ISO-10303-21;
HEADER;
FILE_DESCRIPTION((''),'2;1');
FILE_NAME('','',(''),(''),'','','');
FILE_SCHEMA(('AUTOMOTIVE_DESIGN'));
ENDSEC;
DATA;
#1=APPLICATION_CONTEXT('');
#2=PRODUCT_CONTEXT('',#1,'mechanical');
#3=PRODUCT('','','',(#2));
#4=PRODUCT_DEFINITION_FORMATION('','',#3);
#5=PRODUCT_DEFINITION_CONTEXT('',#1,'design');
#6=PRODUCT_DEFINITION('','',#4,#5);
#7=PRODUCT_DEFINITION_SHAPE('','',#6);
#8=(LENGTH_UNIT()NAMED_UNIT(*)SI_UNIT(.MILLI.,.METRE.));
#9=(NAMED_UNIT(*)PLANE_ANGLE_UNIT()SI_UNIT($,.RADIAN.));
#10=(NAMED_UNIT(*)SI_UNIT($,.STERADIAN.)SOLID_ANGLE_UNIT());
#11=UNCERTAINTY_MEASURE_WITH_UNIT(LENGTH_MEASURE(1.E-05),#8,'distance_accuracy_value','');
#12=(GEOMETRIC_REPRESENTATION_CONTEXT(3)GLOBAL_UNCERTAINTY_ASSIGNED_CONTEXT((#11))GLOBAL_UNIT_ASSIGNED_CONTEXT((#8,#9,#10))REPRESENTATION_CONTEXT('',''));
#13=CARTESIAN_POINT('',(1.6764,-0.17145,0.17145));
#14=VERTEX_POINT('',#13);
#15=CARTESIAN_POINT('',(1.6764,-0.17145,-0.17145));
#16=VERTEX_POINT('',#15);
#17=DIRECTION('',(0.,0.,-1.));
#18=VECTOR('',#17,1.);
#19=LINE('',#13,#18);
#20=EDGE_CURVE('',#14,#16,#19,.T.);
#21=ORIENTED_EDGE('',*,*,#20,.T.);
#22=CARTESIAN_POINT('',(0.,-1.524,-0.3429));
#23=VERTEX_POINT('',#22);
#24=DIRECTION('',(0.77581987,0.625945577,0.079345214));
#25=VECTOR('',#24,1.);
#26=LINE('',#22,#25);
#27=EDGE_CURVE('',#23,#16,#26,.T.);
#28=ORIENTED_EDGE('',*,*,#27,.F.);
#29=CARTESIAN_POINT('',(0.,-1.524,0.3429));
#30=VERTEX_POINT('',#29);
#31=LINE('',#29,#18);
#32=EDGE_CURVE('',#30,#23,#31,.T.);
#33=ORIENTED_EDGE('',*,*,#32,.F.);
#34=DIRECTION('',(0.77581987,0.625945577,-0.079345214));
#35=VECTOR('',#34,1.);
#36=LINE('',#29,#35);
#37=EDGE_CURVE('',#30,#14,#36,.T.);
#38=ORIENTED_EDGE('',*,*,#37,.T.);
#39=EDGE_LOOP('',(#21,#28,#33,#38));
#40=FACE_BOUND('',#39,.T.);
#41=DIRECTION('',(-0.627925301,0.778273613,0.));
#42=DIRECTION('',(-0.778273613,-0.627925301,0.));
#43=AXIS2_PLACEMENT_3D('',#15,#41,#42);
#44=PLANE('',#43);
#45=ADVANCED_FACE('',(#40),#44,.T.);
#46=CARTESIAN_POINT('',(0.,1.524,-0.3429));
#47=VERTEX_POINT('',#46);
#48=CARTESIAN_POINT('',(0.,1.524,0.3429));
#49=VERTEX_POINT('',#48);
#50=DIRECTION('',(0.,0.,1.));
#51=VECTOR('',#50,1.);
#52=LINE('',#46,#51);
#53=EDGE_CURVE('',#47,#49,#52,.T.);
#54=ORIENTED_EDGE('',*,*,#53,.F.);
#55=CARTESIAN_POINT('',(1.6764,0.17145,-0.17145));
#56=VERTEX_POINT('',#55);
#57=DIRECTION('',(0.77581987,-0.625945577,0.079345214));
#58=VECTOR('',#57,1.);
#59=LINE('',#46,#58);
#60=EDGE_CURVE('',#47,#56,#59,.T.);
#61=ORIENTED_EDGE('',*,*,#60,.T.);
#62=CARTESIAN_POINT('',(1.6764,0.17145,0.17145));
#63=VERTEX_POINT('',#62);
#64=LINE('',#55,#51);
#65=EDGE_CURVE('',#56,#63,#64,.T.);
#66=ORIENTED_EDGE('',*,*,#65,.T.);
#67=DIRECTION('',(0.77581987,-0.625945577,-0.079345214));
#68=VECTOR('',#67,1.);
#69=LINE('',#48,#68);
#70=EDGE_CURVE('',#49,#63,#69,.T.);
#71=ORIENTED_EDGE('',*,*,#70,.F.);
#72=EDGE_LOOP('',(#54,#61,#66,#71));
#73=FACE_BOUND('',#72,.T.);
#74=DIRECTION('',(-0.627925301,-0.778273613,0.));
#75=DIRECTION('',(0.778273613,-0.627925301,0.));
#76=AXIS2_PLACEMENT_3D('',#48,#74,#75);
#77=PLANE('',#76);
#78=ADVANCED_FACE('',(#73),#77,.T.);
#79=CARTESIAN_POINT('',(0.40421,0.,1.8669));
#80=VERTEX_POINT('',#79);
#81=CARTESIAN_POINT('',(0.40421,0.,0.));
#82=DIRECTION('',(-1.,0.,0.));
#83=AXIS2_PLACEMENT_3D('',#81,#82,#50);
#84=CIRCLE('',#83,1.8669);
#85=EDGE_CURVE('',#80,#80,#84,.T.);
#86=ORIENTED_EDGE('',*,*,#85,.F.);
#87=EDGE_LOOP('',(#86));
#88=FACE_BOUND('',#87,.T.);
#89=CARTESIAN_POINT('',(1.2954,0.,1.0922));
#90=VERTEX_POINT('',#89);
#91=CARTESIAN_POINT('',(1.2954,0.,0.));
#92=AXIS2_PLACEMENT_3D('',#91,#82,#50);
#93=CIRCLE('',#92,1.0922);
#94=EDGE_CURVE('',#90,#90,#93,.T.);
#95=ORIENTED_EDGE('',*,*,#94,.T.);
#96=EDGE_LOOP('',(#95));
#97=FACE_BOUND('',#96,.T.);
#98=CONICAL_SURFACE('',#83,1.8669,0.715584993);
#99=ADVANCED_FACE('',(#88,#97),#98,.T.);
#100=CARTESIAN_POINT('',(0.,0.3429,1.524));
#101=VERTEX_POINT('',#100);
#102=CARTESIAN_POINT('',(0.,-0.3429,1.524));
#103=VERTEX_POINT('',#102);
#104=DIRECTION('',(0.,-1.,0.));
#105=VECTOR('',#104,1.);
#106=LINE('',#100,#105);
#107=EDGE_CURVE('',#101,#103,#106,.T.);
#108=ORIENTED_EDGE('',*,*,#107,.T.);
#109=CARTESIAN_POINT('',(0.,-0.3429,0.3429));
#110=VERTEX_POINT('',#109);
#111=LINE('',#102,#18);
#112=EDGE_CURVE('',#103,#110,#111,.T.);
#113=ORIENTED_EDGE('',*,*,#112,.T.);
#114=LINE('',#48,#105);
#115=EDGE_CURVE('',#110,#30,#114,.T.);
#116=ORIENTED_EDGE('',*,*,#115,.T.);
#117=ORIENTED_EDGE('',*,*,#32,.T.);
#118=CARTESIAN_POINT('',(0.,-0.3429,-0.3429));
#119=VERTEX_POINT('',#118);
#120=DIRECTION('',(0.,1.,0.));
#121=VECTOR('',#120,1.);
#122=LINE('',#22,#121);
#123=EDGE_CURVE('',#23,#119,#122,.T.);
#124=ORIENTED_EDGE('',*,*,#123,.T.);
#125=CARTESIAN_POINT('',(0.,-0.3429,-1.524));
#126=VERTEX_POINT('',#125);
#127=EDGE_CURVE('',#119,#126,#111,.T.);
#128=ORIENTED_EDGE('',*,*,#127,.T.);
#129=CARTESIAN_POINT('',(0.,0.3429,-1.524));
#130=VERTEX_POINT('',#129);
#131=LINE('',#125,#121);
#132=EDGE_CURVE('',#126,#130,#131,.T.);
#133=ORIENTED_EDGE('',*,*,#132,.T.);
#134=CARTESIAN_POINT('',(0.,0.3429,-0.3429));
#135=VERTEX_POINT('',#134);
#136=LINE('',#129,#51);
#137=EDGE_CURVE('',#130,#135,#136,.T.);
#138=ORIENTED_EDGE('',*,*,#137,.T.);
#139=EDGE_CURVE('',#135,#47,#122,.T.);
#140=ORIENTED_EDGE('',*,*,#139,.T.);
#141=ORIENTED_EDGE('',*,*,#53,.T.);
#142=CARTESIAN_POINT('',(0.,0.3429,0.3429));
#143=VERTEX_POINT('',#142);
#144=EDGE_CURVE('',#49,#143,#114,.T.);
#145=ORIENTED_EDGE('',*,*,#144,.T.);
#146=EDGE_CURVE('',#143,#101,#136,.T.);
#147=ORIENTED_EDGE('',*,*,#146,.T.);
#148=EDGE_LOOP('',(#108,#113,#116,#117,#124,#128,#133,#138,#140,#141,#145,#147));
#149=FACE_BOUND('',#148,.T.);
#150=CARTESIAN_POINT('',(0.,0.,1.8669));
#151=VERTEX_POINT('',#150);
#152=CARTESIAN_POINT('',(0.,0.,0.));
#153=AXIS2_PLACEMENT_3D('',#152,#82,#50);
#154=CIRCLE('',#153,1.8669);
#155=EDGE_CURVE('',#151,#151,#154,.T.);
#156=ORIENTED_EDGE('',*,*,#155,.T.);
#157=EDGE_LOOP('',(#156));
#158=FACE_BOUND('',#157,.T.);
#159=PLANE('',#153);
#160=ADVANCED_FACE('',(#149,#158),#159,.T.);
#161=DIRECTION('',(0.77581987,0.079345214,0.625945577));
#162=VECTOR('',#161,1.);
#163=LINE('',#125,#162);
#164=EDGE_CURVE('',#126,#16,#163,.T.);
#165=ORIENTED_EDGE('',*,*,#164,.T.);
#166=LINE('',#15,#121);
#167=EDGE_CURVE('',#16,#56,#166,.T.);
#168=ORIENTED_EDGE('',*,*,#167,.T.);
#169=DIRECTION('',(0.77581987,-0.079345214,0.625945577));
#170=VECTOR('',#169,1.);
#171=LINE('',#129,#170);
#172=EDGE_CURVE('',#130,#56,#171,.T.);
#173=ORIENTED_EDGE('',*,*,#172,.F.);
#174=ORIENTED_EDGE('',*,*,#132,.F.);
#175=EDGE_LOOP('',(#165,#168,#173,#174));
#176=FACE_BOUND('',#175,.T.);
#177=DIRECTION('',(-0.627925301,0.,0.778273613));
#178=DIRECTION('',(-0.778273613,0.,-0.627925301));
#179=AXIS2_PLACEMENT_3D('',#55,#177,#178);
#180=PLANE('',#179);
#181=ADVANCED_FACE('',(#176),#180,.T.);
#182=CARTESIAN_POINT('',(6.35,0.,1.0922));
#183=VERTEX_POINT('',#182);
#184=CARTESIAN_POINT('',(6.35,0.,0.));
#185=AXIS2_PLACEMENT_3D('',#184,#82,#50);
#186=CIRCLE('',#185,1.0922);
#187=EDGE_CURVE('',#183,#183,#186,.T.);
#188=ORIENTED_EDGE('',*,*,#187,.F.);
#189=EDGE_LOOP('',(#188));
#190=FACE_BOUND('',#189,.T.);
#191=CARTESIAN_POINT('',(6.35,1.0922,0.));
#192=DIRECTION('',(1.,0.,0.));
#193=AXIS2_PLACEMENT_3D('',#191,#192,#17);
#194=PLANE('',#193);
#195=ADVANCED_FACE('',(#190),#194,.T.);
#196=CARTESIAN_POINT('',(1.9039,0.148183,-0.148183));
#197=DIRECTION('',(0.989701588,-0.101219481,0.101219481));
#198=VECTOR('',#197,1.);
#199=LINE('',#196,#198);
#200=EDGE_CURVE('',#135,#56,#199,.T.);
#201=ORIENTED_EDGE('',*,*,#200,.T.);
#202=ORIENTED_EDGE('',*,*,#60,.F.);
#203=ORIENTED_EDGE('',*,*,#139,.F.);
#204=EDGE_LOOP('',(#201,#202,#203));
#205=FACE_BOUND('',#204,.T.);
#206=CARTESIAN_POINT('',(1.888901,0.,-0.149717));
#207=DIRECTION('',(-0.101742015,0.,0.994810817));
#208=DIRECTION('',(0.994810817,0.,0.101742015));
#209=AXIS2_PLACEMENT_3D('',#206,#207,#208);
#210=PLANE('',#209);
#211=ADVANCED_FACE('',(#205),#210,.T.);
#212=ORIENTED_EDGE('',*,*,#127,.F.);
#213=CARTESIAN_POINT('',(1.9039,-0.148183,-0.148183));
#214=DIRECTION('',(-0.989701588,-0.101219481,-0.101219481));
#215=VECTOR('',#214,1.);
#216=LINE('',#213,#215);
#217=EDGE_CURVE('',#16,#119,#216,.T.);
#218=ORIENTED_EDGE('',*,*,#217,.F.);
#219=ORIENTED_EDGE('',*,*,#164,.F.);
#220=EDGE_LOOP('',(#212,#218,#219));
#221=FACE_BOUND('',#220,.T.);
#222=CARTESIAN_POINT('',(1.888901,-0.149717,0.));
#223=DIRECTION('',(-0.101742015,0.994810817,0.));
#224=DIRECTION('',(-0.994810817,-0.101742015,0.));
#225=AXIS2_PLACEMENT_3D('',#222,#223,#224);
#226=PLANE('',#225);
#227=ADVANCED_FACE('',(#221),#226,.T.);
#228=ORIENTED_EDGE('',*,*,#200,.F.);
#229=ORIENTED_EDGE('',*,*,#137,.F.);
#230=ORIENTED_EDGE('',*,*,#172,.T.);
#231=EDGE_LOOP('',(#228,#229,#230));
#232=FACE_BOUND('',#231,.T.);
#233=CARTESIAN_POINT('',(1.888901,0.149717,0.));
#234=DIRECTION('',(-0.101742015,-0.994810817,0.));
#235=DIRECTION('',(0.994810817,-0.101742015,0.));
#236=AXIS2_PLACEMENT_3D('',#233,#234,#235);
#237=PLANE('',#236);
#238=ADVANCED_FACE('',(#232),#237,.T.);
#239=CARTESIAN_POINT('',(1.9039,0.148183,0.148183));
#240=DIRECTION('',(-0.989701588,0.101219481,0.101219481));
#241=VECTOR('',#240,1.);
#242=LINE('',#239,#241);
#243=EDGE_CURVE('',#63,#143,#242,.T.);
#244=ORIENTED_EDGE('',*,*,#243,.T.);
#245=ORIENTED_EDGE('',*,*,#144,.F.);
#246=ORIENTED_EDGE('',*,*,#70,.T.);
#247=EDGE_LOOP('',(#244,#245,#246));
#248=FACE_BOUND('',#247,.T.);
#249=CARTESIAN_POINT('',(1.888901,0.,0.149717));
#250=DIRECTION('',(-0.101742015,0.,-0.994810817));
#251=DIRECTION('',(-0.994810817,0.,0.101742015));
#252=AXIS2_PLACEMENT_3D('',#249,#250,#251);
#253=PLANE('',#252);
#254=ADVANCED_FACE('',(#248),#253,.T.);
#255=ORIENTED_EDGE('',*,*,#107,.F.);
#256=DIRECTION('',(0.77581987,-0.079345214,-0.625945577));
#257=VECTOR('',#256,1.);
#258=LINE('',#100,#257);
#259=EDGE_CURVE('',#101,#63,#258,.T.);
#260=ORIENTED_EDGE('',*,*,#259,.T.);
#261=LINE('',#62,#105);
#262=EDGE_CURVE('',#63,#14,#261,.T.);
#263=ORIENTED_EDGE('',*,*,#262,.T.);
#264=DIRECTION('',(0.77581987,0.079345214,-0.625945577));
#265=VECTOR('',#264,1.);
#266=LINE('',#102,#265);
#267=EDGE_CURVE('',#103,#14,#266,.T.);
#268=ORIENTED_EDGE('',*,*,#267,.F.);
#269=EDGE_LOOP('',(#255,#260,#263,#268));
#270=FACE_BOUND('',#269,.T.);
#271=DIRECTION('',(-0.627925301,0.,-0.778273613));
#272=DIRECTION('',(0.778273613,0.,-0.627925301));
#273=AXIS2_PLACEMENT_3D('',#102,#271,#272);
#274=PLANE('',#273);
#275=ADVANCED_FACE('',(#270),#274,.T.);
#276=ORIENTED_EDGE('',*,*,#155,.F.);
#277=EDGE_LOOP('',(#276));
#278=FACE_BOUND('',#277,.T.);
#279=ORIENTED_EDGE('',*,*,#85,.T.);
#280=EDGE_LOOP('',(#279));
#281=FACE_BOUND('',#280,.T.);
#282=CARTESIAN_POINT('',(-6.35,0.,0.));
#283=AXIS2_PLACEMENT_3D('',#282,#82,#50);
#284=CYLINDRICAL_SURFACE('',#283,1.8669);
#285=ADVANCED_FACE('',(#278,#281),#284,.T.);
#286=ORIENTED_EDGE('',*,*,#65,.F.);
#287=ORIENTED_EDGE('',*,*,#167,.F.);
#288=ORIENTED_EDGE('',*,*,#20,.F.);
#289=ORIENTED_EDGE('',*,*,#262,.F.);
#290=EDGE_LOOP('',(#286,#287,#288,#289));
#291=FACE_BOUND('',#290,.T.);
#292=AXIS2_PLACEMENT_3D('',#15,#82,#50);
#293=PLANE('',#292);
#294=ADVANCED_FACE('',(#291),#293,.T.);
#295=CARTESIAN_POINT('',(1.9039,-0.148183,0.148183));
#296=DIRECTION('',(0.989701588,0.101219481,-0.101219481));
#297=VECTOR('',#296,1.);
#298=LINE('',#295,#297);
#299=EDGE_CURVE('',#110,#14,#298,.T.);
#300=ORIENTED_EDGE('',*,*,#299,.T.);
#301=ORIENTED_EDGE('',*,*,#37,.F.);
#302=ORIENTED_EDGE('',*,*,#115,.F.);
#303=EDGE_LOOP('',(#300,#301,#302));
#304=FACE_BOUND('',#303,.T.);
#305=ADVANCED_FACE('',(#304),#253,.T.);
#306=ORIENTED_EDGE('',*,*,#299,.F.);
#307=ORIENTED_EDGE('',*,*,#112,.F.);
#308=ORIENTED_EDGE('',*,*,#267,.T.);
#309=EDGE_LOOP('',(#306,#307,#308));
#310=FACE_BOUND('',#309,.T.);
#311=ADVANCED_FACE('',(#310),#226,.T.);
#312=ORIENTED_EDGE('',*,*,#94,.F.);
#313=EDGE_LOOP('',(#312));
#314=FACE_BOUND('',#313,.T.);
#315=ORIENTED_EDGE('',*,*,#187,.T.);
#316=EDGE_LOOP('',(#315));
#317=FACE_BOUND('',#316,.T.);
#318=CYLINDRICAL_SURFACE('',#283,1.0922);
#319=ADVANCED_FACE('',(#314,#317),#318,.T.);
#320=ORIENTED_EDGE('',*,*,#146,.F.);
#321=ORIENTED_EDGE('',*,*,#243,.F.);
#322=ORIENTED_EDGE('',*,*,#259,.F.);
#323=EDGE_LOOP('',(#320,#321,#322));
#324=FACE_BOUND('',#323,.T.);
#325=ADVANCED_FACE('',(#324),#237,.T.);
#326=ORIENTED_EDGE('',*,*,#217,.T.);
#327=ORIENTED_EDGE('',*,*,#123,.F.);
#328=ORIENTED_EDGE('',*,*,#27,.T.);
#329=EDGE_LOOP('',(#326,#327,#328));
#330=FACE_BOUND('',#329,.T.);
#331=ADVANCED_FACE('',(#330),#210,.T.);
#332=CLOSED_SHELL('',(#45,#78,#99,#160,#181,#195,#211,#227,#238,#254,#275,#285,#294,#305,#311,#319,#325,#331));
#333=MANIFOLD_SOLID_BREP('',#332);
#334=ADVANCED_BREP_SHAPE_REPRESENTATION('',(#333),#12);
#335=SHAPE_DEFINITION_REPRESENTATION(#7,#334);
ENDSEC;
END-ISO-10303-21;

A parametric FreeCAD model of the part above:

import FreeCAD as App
import Part
import Sketcher
from FreeCAD import Vector
Q = App.Units.Quantity


def add_polygon(sketch, points):
    """Adds a closed chain of lines whose ends are joined by coincident constraints."""
    first, n = sketch.GeometryCount, len(points)
    for a, b in zip(points, points[1:] + points[:1]):
        sketch.addGeometry(Part.LineSegment(App.Vector(*a, 0), App.Vector(*b, 0)), False)
    for i in range(n):
        sketch.addConstraint(Sketcher.Constraint("Coincident", first + i, 2, first + (i + 1) % n, 1))

doc = App.newDocument("Part")
body = doc.addObject("PartDesign::Body", "Body")

# Sketch on XY plane
sketch1 = doc.addObject("Sketcher::SketchObject", "Sketch")
body.addObject(sketch1)
sketch1.AttachmentSupport = (doc.XY_Plane, [""])
sketch1.MapMode = "FlatFace"
add_polygon(sketch1, [(0, 1.87), (0, 0), (6.35, 0), (6.35, 1.09), (1.3, 1.09), (0.4, 1.87)])  # lines 0-5
sketch1.addConstraint([
    Sketcher.Constraint("Vertical", 0),
    Sketcher.Constraint("Horizontal", 1),
    Sketcher.Constraint("Vertical", 2),
    Sketcher.Constraint("Horizontal", 3),
    Sketcher.Constraint("Horizontal", 5),
    Sketcher.Constraint("Coincident", 0, 2, -1, 1),
    Sketcher.Constraint("Angle", 4, Q("139 deg")),
    Sketcher.Constraint("DistanceX", 1, 1, 1, 2, Q("0.25 in")),
    Sketcher.Constraint("DistanceX", 3, 2, 3, 1, Q("0.199 in")),
    Sketcher.Constraint("DistanceY", 2, 1, 2, 2, Q("0.043 in")),
    Sketcher.Constraint("DistanceY", 0, 2, 0, 1, Q("0.0735 in")),
])
revolution = doc.addObject("PartDesign::Revolution", "Revolution")
body.addObject(revolution)
revolution.Profile = sketch1
revolution.ReferenceAxis = (sketch1, ["H_Axis"])
revolution.Angle = 360

# Sketch on YZ plane
sketch2 = doc.addObject("Sketcher::SketchObject", "Sketch001")
body.addObject(sketch2)
sketch2.AttachmentSupport = (doc.YZ_Plane, [""])
sketch2.MapMode = "FlatFace"
add_polygon(sketch2, [(1.5, -0.3), (-1.5, -0.3), (-1.5, 0.3), (1.5, 0.3)])  # lines 0-3
sketch2.addConstraint([
    Sketcher.Constraint("Horizontal", 0),
    Sketcher.Constraint("Vertical", 1),
    Sketcher.Constraint("Horizontal", 2),
    Sketcher.Constraint("Vertical", 3),
    Sketcher.Constraint("Symmetric", 0, 2, 2, 2, -1, 1),
    Sketcher.Constraint("DistanceX", 0, 2, 0, 1, Q("0.12 in")),
    Sketcher.Constraint("DistanceY", 1, 1, 1, 2, Q("0.027 in")),
])

# Sketch on YZ plane
sketch3 = doc.addObject("Sketcher::SketchObject", "Sketch002")
body.addObject(sketch3)
sketch3.AttachmentSupport = (doc.YZ_Plane, [""])
sketch3.MapMode = "FlatFace"
sketch3.AttachmentOffset = App.Placement(Vector(0, 0, 0.066 * 25.4), App.Rotation())
add_polygon(sketch3, [(0.17, -0.17), (-0.17, -0.17), (-0.17, 0.17), (0.17, 0.17)])  # lines 0-3
sketch3.addConstraint([
    Sketcher.Constraint("Horizontal", 0),
    Sketcher.Constraint("Vertical", 1),
    Sketcher.Constraint("Horizontal", 2),
    Sketcher.Constraint("Vertical", 3),
    Sketcher.Constraint("Symmetric", 0, 2, 2, 2, -1, 1),
    Sketcher.Constraint("Equal", 2, 1),
    Sketcher.Constraint("DistanceX", 0, 2, 0, 1, Q("0.0135 in")),
])

subtractiveloft = doc.addObject("PartDesign::SubtractiveLoft", "SubtractiveLoft")
body.addObject(subtractiveloft)
subtractiveloft.Profile = sketch2
subtractiveloft.Sections = [sketch3]
doc.recompute()

polarpattern = doc.addObject("PartDesign::PolarPattern", "PolarPattern")
body.addObject(polarpattern)
polarpattern.Originals = [subtractiveloft]
polarpattern.Axis = (doc.X_Axis, [""])
polarpattern.Angle = 90
polarpattern.Occurrences = 2
body.Tip = polarpattern

doc.recompute()
